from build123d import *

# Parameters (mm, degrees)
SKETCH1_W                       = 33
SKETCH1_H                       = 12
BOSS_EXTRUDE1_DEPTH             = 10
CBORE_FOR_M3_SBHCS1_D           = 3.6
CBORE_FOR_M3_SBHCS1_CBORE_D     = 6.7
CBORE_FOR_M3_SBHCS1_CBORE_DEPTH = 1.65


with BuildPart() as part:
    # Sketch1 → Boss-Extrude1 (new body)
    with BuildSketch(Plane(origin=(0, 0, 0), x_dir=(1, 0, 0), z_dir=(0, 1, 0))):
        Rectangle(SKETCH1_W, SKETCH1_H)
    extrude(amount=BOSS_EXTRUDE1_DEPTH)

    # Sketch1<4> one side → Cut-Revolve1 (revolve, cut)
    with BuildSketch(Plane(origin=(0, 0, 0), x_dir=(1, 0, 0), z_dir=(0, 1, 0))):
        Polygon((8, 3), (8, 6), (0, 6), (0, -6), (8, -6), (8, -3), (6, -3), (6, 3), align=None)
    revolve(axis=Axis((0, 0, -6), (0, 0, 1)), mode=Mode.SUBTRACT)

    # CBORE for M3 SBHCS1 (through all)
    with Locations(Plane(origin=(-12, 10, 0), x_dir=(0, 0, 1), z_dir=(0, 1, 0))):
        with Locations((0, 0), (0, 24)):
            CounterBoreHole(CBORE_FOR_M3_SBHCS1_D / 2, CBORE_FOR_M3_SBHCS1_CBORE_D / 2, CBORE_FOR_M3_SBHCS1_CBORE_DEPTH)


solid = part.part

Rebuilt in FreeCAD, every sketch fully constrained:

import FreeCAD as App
import Part
import Sketcher
Q = App.Units.Quantity


def add_polygon(sketch, points):
    """Adds a closed chain of lines whose ends are joined by coincident constraints."""
    first, n = sketch.GeometryCount, len(points)
    for a, b in zip(points, points[1:] + points[:1]):
        sketch.addGeometry(Part.LineSegment(App.Vector(*a, 0), App.Vector(*b, 0)), False)
    for i in range(n):
        sketch.addConstraint(Sketcher.Constraint("Coincident", first + i, 2, first + (i + 1) % n, 1))

doc = App.newDocument("Part")
body = doc.addObject("PartDesign::Body", "Body")

# Sketch on XZ plane
sketch1 = body.newObject("Sketcher::SketchObject", "Sketch")
sketch1.AttachmentSupport = (doc.getObject("XZ_Plane"), [""])
sketch1.MapMode = "FlatFace"
add_polygon(sketch1, [(-16, -6), (-16, 6), (16, 6), (16, -6)])  # lines 0-3
sketch1.addConstraint([
    Sketcher.Constraint("Vertical", 0),
    Sketcher.Constraint("Horizontal", 1),
    Sketcher.Constraint("Vertical", 2),
    Sketcher.Constraint("Horizontal", 3),
    Sketcher.Constraint("Symmetric", 0, 2, 2, 2, -1, 1),
    Sketcher.Constraint("DistanceX", 1, 1, 1, 2, Q("33 mm")),
    Sketcher.Constraint("DistanceY", 0, 1, 0, 2, Q("12 mm")),
])
pad1 = body.newObject("PartDesign::Pad", "Pad")
pad1.Profile = sketch1
pad1.Length = 10
pad1.Reversed = True

# Sketch on XZ plane
sketch2 = body.newObject("Sketcher::SketchObject", "Sketch001")
sketch2.AttachmentSupport = (doc.getObject("XZ_Plane"), [""])
sketch2.MapMode = "FlatFace"
add_polygon(sketch2, [(8, -3), (8, -6), (0, -6), (0, 6), (8, 6), (8, 3), (6, 3), (6, -3)])  # lines 0-7
sketch2.addConstraint([
    Sketcher.Constraint("Vertical", 0),
    Sketcher.Constraint("Horizontal", 1),
    Sketcher.Constraint("Vertical", 2),
    Sketcher.Constraint("Horizontal", 3),
    Sketcher.Constraint("Vertical", 4),
    Sketcher.Constraint("Horizontal", 5),
    Sketcher.Constraint("Vertical", 6),
    Sketcher.Constraint("Horizontal", 7),
    Sketcher.Constraint("Symmetric", 1, 2, 2, 2, -1, 1),
    Sketcher.Constraint("Symmetric", 4, 2, 7, 2, -1),
    Sketcher.Constraint("DistanceX", 1, 2, 1, 1, Q("8 mm")),
    Sketcher.Constraint("DistanceX", 5, 2, 5, 1, Q("2 mm")),
    Sketcher.Constraint("DistanceY", 0, 2, 0, 1, Q("3 mm")),
    Sketcher.Constraint("DistanceY", 2, 1, 2, 2, Q("12 mm")),
])
groove = body.newObject("PartDesign::Groove", "Groove")
groove.Profile = sketch2
groove.ReferenceAxis = (sketch2, ["V_Axis"])
groove.Angle = 360

# Sketch on XZ plane
sketch3 = body.newObject("Sketcher::SketchObject", "Sketch002")
sketch3.AttachmentSupport = (doc.getObject("XZ_Plane"), [""])
sketch3.MapMode = "FlatFace"
sketch3.AttachmentOffset = App.Placement(App.Vector(0, 0, -10), App.Rotation())
sketch3.addGeometry([
    Part.Circle(App.Vector(-12, 0, 0), App.Vector(0, 0, 1), 1.8),
    Part.Circle(App.Vector(12, 0, 0), App.Vector(0, 0, 1), 1.8),
], False)
sketch3.addConstraint([
    Sketcher.Constraint("Equal", 0, 1),
    Sketcher.Constraint("Symmetric", 0, 3, 1, 3, -1, 1),
    Sketcher.Constraint("PointOnObject", 0, 3, -1),
    Sketcher.Constraint("Diameter", 0, Q("3.6 mm")),
    Sketcher.Constraint("DistanceX", 0, 3, -1, 1, Q("12 mm")),
])
doc.recompute()
hole = body.newObject("PartDesign::Hole", "Hole")
hole.Profile = sketch3
hole.ThreadType = "None"
hole.Diameter = 3.6
hole.DepthType = "ThroughAll"
hole.HoleCutType = "Counterbore"
hole.HoleCutDiameter = 6.7
hole.HoleCutDepth = 1.65
hole.Reversed = True

doc.recompute()
